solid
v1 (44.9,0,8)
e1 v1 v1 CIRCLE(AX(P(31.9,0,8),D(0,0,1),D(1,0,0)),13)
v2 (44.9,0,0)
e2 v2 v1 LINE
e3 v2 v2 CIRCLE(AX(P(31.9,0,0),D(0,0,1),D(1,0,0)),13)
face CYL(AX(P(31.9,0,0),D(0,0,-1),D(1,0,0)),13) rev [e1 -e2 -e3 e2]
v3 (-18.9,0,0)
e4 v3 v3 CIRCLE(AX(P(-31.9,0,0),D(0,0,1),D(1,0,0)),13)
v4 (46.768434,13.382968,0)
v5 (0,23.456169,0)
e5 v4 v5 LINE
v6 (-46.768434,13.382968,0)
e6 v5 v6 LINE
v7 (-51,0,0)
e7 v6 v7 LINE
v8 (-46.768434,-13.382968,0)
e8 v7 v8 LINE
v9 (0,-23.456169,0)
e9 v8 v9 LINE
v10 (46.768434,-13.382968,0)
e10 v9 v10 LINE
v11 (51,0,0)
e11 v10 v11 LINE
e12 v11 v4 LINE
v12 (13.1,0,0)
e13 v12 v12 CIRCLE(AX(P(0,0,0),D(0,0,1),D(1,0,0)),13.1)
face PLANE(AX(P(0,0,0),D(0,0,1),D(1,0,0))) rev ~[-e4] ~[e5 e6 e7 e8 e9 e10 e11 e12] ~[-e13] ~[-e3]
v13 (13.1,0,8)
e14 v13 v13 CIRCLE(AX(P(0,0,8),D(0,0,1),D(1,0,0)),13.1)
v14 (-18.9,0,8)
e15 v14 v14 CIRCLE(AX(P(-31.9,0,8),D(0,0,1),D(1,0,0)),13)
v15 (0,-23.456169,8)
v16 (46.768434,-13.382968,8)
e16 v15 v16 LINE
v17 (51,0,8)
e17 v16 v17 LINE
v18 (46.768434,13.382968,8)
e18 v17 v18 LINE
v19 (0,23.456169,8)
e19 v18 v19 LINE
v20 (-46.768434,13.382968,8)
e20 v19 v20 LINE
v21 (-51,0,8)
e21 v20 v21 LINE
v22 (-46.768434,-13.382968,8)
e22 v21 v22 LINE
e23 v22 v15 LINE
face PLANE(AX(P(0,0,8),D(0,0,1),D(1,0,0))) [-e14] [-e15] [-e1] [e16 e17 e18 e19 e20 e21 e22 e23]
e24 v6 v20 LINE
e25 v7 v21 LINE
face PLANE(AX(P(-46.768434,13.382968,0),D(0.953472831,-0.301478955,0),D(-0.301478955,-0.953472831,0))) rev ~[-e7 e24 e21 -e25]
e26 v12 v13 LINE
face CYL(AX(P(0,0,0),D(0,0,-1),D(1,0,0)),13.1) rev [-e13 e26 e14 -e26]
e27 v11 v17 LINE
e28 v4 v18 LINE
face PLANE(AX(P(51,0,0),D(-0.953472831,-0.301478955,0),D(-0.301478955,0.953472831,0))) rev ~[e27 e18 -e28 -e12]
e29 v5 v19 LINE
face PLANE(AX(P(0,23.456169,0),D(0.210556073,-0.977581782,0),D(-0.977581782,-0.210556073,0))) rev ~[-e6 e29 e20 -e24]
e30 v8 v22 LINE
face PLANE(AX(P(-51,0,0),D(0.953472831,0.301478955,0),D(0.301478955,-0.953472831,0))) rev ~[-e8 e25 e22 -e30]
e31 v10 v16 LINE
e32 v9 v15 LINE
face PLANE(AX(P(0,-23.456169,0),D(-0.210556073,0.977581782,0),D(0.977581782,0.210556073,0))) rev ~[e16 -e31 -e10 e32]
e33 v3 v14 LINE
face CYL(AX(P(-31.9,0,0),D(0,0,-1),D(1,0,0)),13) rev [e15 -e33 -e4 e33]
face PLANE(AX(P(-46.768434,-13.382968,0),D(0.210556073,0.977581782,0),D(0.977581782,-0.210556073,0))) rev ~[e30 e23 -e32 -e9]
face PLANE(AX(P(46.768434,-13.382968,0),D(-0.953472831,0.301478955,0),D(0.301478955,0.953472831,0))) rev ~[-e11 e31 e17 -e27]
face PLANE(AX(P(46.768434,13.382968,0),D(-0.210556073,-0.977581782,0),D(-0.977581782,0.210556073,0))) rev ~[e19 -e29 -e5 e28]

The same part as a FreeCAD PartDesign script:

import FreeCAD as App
import Part
import Sketcher
from FreeCAD import Vector


def add_polygon(sketch, points):
    """Adds a closed chain of lines whose ends are joined by coincident constraints."""
    first, n = sketch.GeometryCount, len(points)
    for a, b in zip(points, points[1:] + points[:1]):
        sketch.addGeometry(Part.LineSegment(App.Vector(*a, 0), App.Vector(*b, 0)), False)
    for i in range(n):
        sketch.addConstraint(Sketcher.Constraint("Coincident", first + i, 2, first + (i + 1) % n, 1))

doc = App.newDocument("Part")
params = doc.addObject("Spreadsheet::Sheet", "Params")
for row, (alias, value) in enumerate([
    ("sketch1_diameter", "26 mm"),
    ("sketch1_diameter2", "26.2 mm"),
    ("pad1_length", "8 mm"),
], start=1):
    params.set(f"A{row}", alias)
    params.set(f"B{row}", "=" + value)
    params.setAlias(f"B{row}", alias)

body = doc.addObject("PartDesign::Body", "Body")

# Sketch on XY plane
sketch1 = body.newObject("Sketcher::SketchObject", "Sketch")
sketch1.AttachmentSupport = (doc.getObject("XY_Plane"), [""])
sketch1.MapMode = "FlatFace"
add_polygon(sketch1, [(-47, 13), (-51, 0), (-47, -13), (0, -23), (47, -13), (51, 0), (47, 13), (0, 23)])  # lines 0-7
sketch1.addGeometry(Part.Circle(Vector(-32, 0, 0), Vector(0, 0, 1), 13), False)  # 8
sketch1.addGeometry(Part.Circle(Vector(0, 0, 0), Vector(0, 0, 1), 13), False)  # 9
sketch1.addGeometry(Part.Circle(Vector(32, 0, 0), Vector(0, 0, 1), 13), False)  # 10
sketch1.addConstraint([
    Sketcher.Constraint("Coincident", 9, 3, -1, 1),
    Sketcher.Constraint("Equal", 8, 10),
    Sketcher.Constraint("Symmetric", 8, 3, 10, 3, -1, 1),
    Sketcher.Constraint("Symmetric", 0, 2, 4, 2, -1, 1),
    Sketcher.Constraint("Symmetric", 1, 2, 5, 2, -1, 1),
    Sketcher.Constraint("Symmetric", 2, 2, 6, 2, -1, 1),
    Sketcher.Constraint("Symmetric", 3, 2, 7, 2, -1, 1),
    Sketcher.Constraint("Symmetric", 1, 2, 3, 2, -2),
    Sketcher.Constraint("PointOnObject", 8, 3, -1),
    Sketcher.Constraint("PointOnObject", 0, 2, -1),
    Sketcher.Constraint("PointOnObject", 2, 2, -2),
    Sketcher.Constraint("Diameter", 8, 26.0),
    Sketcher.Constraint("Diameter", 9, 26.2),
    Sketcher.Constraint("DistanceX", 0, 2, -1, 1, 51.0),
    Sketcher.Constraint("DistanceX", 8, 3, -1, 1, 31.9),
    Sketcher.Constraint("DistanceY", 2, 2, 1, 2, 10.073201),
    Sketcher.Constraint("DistanceY", 2, 2, -1, 1, 23.456169),
    Sketcher.Constraint("DistanceX", 1, 2, 3, 2, 93.536868),
])
sketch1.setExpression("Constraints[19]", "Params.sketch1_diameter")
sketch1.setExpression("Constraints[20]", "Params.sketch1_diameter2")
pad1 = body.newObject("PartDesign::Pad", "Pad")
pad1.Profile = sketch1
pad1.setExpression("Length", "Params.pad1_length")

doc.recompute()
